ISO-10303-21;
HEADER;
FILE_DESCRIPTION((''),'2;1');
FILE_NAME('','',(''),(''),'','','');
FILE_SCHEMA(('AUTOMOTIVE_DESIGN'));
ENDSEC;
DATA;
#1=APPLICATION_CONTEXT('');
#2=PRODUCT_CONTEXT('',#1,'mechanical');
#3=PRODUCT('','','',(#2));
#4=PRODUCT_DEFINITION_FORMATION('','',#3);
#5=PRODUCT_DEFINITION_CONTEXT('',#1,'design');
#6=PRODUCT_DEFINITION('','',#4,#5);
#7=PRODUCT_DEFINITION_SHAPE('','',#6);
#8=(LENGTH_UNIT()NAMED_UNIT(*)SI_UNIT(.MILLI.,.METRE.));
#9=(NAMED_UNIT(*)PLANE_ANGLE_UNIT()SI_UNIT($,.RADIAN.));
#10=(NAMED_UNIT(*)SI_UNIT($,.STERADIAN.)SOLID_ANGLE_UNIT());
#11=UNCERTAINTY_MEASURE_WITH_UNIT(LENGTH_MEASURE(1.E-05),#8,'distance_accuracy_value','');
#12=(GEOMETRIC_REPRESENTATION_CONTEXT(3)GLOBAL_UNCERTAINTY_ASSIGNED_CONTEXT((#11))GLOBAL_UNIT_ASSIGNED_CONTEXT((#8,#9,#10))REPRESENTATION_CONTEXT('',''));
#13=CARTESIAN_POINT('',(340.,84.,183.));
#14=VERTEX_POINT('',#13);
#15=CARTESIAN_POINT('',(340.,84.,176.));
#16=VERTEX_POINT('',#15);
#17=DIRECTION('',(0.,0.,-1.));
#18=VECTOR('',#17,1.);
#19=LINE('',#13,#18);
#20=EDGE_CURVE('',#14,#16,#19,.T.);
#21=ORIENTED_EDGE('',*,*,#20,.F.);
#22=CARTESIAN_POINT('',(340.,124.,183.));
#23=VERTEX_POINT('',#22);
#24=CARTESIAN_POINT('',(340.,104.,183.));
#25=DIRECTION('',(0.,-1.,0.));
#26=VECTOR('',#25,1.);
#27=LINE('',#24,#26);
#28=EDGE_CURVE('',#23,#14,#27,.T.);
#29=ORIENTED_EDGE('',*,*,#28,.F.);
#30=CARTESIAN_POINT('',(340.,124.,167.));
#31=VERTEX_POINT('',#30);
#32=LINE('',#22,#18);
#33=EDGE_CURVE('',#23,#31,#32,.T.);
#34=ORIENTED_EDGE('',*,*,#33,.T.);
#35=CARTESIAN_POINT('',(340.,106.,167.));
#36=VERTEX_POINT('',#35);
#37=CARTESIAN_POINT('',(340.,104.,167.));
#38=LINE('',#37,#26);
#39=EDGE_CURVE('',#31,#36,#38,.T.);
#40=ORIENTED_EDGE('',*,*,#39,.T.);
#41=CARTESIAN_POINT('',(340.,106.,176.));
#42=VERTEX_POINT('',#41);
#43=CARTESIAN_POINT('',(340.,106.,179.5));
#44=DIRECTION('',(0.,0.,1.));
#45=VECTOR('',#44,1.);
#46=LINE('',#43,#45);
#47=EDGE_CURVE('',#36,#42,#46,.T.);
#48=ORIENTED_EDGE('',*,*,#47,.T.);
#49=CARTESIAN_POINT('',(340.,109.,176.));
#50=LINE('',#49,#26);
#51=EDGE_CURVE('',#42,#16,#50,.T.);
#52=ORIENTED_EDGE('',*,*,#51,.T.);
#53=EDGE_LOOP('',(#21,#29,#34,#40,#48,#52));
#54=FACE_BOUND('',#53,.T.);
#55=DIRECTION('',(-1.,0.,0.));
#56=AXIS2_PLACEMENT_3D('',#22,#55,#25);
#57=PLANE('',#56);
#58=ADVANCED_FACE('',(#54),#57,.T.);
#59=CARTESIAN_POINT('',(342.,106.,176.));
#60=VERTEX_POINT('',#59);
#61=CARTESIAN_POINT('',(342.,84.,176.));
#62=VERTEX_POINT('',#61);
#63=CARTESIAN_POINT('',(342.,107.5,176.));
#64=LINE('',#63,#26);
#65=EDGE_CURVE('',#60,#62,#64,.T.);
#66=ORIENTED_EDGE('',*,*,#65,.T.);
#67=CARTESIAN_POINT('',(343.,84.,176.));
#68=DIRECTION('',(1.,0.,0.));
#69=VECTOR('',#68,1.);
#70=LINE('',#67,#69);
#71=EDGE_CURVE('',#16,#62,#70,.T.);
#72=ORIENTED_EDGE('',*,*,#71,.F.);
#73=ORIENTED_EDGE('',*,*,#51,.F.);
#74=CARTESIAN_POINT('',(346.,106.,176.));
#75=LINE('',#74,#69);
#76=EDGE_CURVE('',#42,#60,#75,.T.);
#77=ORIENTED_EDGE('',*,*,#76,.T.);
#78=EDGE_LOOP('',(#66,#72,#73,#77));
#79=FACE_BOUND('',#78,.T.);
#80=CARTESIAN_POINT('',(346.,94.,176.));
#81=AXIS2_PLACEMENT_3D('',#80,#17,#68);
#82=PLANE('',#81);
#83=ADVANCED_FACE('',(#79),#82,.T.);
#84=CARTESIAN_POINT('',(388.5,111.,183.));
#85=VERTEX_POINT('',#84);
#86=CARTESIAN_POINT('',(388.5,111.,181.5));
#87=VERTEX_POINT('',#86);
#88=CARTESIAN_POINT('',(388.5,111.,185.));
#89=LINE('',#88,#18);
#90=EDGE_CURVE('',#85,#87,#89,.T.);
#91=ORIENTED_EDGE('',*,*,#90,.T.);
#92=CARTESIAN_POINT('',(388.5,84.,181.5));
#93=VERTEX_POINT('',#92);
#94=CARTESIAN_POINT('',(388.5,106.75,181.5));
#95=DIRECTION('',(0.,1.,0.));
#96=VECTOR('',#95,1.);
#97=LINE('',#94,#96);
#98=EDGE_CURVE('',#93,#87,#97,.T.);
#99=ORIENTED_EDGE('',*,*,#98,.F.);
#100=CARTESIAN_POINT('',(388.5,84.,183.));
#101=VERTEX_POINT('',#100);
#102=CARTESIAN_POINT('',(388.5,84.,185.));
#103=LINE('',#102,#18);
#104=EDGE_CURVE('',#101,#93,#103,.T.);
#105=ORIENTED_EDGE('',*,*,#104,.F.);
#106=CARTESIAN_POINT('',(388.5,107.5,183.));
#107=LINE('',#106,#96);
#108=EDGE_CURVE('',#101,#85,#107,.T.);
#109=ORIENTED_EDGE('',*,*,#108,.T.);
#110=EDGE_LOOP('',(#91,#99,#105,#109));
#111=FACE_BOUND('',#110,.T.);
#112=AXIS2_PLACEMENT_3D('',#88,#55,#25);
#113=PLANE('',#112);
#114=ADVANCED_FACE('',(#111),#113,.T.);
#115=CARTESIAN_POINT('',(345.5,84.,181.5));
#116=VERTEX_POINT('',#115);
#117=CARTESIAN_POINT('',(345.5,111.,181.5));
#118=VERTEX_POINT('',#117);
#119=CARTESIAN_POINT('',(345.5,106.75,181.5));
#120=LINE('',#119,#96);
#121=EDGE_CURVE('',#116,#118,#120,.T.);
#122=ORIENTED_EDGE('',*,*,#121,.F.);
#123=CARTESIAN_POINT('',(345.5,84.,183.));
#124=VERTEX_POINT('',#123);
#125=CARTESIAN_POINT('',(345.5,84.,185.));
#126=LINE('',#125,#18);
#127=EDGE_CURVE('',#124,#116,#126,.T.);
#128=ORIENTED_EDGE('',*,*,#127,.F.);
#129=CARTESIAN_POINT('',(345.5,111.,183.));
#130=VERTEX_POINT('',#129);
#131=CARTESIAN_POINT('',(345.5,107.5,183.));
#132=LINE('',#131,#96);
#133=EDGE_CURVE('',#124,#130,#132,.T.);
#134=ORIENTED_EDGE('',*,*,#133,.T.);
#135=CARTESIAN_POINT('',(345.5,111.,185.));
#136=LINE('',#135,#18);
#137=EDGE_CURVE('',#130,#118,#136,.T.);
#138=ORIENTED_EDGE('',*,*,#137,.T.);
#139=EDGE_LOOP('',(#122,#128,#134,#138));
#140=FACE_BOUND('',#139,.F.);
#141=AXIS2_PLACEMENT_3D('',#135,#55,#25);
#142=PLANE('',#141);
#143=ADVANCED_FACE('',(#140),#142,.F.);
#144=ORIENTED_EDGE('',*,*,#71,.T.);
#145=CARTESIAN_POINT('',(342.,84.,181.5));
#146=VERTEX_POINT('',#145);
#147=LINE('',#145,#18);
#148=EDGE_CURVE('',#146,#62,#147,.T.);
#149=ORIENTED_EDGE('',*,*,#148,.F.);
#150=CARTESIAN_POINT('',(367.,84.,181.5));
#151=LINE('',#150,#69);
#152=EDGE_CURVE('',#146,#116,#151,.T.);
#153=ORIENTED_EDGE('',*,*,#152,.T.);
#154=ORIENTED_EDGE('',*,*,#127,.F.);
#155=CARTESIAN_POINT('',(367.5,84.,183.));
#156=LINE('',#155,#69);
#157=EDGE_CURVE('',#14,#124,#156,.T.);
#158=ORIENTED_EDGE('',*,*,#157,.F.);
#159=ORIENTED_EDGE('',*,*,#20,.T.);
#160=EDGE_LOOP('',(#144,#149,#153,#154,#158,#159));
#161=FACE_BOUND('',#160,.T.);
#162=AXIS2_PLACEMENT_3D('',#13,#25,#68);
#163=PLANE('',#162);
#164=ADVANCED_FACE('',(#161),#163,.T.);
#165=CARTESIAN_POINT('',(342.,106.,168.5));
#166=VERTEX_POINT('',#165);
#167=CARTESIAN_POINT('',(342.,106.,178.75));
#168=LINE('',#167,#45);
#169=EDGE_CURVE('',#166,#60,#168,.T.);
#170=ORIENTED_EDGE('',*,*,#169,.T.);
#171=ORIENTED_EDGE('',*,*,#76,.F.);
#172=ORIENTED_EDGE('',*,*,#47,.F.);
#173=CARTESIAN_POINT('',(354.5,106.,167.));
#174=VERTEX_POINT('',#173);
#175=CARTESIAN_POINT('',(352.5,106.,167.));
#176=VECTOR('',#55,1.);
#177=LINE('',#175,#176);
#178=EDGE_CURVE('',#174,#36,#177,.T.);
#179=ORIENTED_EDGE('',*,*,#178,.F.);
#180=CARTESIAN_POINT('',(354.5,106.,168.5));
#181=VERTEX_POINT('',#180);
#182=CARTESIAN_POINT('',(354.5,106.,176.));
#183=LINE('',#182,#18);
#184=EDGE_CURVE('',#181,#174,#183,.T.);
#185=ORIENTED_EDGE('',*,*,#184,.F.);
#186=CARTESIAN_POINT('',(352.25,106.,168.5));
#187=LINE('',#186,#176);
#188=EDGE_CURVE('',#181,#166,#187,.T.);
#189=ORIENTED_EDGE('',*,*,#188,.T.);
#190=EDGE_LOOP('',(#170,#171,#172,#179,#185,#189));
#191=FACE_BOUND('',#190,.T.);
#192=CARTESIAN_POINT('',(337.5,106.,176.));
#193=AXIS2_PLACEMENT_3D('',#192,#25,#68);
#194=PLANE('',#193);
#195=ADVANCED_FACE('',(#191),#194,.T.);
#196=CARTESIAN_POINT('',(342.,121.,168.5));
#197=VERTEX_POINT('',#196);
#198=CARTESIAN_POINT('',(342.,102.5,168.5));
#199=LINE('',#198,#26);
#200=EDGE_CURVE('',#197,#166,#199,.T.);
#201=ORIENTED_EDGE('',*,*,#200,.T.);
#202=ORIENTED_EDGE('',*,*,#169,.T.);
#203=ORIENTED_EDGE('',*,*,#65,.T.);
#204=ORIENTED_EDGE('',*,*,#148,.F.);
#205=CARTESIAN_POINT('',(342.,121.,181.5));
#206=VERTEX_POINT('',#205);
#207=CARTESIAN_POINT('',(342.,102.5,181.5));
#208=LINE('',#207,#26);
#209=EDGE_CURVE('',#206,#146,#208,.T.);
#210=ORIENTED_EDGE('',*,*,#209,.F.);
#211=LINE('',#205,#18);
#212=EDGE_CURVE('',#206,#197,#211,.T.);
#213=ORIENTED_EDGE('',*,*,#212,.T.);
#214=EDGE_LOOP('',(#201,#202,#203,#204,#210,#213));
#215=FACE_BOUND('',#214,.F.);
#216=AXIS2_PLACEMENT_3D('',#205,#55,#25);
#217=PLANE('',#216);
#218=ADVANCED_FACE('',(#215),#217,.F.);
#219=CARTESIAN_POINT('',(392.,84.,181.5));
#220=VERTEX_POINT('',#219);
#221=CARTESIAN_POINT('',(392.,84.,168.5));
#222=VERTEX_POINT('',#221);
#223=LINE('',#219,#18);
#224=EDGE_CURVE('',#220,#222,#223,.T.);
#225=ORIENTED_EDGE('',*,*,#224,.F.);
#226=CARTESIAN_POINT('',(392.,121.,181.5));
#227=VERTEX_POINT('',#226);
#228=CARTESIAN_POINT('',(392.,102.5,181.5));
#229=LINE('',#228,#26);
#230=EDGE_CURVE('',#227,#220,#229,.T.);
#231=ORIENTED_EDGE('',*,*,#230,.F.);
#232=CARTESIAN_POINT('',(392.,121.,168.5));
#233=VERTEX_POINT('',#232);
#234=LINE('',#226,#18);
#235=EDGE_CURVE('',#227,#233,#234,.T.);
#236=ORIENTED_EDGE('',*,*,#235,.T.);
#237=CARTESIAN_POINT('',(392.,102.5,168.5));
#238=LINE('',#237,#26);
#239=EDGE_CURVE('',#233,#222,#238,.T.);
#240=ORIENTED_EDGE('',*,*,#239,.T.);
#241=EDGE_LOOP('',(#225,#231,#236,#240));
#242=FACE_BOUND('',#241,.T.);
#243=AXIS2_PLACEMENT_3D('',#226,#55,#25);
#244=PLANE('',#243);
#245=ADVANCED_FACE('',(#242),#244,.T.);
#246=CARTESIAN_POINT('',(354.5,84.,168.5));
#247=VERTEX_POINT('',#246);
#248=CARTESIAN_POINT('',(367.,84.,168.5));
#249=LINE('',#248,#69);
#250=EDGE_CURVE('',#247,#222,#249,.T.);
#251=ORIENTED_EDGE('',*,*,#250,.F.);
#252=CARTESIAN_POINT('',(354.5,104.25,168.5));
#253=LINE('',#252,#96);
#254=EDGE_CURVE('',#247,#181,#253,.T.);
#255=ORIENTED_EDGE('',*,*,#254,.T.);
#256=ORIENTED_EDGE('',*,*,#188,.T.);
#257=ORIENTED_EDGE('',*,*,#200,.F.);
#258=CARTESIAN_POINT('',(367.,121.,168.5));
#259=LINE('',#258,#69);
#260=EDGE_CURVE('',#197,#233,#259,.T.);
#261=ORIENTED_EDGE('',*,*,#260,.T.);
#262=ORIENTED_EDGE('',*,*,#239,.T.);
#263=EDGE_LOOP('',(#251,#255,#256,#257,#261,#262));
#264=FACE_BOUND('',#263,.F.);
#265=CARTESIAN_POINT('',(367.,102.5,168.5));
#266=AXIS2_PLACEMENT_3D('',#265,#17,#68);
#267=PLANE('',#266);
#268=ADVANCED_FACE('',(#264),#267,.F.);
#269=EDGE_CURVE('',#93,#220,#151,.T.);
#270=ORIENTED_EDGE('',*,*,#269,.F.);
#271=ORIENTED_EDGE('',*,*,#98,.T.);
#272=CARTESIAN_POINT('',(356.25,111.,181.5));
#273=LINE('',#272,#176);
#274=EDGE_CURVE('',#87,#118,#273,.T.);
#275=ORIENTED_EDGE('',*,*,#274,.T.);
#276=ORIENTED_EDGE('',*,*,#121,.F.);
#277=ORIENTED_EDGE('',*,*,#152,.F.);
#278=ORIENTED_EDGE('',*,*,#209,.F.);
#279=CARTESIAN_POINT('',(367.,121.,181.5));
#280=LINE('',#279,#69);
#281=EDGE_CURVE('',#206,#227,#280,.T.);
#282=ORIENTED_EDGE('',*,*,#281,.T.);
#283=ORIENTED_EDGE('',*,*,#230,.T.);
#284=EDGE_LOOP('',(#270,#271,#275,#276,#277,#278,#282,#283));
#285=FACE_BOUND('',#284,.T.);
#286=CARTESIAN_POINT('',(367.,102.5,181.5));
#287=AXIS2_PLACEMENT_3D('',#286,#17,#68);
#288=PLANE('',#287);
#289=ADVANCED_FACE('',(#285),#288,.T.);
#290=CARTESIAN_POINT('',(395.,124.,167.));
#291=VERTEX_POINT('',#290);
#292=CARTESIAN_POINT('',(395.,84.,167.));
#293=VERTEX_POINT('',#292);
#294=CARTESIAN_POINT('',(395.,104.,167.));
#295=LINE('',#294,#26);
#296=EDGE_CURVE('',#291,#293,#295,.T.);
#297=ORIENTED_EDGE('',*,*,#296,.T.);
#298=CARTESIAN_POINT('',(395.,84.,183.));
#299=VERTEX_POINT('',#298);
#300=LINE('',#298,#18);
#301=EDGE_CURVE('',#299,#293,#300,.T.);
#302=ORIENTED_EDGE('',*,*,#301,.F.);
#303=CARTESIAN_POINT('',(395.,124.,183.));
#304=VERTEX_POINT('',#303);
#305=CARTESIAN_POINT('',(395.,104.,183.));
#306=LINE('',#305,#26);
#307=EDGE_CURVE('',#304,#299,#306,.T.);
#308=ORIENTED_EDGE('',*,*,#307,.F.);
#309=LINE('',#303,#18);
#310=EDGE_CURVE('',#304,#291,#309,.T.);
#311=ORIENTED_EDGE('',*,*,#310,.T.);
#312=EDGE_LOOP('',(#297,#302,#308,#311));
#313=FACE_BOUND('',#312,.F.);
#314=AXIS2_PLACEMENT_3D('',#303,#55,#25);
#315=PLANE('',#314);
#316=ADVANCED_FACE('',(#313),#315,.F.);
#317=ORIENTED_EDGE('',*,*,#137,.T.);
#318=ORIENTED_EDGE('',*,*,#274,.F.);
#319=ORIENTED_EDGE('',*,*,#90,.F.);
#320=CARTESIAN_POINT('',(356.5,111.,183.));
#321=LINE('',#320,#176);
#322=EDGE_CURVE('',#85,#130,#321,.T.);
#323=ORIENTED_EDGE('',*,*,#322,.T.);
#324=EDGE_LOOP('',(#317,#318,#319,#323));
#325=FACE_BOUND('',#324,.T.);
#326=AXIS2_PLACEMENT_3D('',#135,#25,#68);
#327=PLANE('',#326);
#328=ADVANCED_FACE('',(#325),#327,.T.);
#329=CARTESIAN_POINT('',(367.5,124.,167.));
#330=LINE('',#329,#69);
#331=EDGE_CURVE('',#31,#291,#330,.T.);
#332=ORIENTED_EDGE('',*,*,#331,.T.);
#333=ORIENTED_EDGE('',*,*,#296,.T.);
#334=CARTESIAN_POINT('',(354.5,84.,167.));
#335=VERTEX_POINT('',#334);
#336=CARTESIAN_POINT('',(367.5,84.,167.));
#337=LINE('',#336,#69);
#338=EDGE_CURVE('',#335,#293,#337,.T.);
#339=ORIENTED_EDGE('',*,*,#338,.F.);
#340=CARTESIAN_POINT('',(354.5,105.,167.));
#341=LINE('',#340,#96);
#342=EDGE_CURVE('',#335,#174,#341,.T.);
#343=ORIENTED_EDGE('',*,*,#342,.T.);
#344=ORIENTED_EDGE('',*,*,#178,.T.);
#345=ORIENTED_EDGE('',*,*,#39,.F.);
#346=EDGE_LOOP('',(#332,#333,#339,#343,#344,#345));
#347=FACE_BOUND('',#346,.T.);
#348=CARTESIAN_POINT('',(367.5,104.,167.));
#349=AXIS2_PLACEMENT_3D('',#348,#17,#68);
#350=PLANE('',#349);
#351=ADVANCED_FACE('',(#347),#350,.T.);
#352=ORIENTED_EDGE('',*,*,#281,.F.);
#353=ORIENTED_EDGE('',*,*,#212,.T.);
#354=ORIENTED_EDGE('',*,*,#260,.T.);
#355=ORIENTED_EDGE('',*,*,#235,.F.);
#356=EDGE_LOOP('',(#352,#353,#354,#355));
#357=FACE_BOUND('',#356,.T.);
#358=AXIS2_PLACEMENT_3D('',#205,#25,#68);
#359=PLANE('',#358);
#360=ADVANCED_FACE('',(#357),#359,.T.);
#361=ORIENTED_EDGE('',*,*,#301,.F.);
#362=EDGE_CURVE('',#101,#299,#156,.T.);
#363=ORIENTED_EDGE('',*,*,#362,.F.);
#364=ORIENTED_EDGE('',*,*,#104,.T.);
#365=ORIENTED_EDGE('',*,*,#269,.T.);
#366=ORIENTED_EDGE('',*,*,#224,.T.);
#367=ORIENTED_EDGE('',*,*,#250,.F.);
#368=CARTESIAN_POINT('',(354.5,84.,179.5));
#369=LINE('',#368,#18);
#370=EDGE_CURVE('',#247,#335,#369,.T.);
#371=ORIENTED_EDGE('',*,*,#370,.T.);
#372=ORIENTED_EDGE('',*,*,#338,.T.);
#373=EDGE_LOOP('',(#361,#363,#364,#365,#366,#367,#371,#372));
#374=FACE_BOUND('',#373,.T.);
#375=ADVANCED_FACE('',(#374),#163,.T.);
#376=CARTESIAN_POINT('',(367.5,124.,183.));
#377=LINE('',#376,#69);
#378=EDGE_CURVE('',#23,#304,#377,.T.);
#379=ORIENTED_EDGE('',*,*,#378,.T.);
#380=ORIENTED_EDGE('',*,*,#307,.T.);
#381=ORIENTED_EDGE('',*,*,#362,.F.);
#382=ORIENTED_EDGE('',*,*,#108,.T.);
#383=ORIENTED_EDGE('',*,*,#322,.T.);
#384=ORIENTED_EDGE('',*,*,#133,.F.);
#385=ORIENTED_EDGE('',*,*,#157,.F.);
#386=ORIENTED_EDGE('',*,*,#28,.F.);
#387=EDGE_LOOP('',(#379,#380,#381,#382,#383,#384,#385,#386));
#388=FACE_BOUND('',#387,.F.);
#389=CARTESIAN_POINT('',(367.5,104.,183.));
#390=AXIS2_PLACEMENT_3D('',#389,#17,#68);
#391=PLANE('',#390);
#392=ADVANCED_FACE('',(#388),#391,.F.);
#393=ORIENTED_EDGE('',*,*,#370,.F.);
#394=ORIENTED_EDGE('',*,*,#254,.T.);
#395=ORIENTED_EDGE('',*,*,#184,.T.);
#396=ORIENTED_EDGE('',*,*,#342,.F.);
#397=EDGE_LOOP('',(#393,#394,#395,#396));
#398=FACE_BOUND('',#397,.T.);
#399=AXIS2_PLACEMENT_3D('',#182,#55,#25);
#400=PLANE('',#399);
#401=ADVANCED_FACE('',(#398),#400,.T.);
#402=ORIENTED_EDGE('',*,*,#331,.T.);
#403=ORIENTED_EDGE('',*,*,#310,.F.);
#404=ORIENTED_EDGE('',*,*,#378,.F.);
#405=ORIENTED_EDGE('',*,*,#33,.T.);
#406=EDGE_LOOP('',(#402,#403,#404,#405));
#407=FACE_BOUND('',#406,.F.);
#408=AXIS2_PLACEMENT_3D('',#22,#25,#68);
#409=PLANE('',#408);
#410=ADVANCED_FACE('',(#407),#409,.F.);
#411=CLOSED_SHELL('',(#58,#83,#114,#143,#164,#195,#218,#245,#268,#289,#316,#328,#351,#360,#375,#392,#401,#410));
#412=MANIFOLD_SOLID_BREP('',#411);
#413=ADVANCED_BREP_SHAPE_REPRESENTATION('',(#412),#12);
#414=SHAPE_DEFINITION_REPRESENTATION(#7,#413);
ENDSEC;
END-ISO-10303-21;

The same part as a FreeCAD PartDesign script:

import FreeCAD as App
import Part
import Sketcher

doc = App.newDocument("Part")
params = doc.addObject("Spreadsheet::Sheet", "Params")
for row, (alias, value) in enumerate([
    ("sketch1_width", "17 mm"),
    ("sketch1_height", "24 mm"),
    ("pad1_length", "11 mm"),
    ("sketch2_width", "43 mm"),
    ("sketch2_height", "27 mm"),
    ("pad2_length", "11 mm"),
    ("sketch3_width", "50 mm"),
    ("sketch3_height", "37 mm"),
    ("pad3_length", "13 mm"),
    ("sketch4_width", "55 mm"),
    ("sketch4_height", "40 mm"),
    ("pad4_length", "16 mm"),
], start=1):
    params.set(f"A{row}", alias)
    params.set(f"B{row}", "=" + value)
    params.setAlias(f"B{row}", alias)

body = doc.addObject("PartDesign::Body", "Body")

# Sketch on XY plane
sketch1 = body.newObject("Sketcher::SketchObject", "Sketch")
sketch1.AttachmentSupport = (doc.getObject("XY_Plane"), [""])
sketch1.MapMode = "FlatFace"
sketch1.AttachmentOffset = App.Placement(App.Vector(0, 0, 176), App.Rotation())
sketch1.addGeometry([
    Part.LineSegment(App.Vector(337.5, 82, 0), App.Vector(337.5, 106, 0)),
    Part.LineSegment(App.Vector(337.5, 106, 0), App.Vector(354.5, 106, 0)),
    Part.LineSegment(App.Vector(354.5, 106, 0), App.Vector(354.5, 82, 0)),
    Part.LineSegment(App.Vector(354.5, 82, 0), App.Vector(337.5, 82, 0)),
], False)
sketch1.addConstraint([
    Sketcher.Constraint("Coincident", 0, 2, 1, 1),
    Sketcher.Constraint("Coincident", 1, 2, 2, 1),
    Sketcher.Constraint("Coincident", 2, 2, 3, 1),
    Sketcher.Constraint("Coincident", 3, 2, 0, 1),
    Sketcher.Constraint("Vertical", 0),
    Sketcher.Constraint("Horizontal", 1),
    Sketcher.Constraint("Vertical", 2),
    Sketcher.Constraint("Horizontal", 3),
    Sketcher.Constraint("DistanceX", 1, 1, 1, 2, 17.0),
    Sketcher.Constraint("DistanceY", 0, 1, 0, 2, 24.0),
    Sketcher.Constraint("DistanceY", -1, 1, 0, 2, 106.0),
    Sketcher.Constraint("DistanceX", -1, 1, 0, 2, 337.5),
])
sketch1.setExpression("Constraints[8]", "Params.sketch1_width")
sketch1.setExpression("Constraints[9]", "Params.sketch1_height")
pad1 = body.newObject("PartDesign::Pad", "Pad")
pad1.Profile = sketch1
pad1.setExpression("Length", "Params.pad1_length")
pad1.Reversed = True
body2 = doc.addObject("PartDesign::Body", "Body001")

# Sketch on XY plane
sketch2 = body2.newObject("Sketcher::SketchObject", "Sketch001")
sketch2.AttachmentSupport = (doc.getObject("XY_Plane001"), [""])
sketch2.MapMode = "FlatFace"
sketch2.AttachmentOffset = App.Placement(App.Vector(0, 0, 185), App.Rotation())
sketch2.addGeometry([
    Part.LineSegment(App.Vector(345.5, 84, 0), App.Vector(345.5, 111, 0)),
    Part.LineSegment(App.Vector(345.5, 111, 0), App.Vector(388.5, 111, 0)),
    Part.LineSegment(App.Vector(388.5, 111, 0), App.Vector(388.5, 84, 0)),
    Part.LineSegment(App.Vector(388.5, 84, 0), App.Vector(345.5, 84, 0)),
], False)
sketch2.addConstraint([
    Sketcher.Constraint("Coincident", 0, 2, 1, 1),
    Sketcher.Constraint("Coincident", 1, 2, 2, 1),
    Sketcher.Constraint("Coincident", 2, 2, 3, 1),
    Sketcher.Constraint("Coincident", 3, 2, 0, 1),
    Sketcher.Constraint("Vertical", 0),
    Sketcher.Constraint("Horizontal", 1),
    Sketcher.Constraint("Vertical", 2),
    Sketcher.Constraint("Horizontal", 3),
    Sketcher.Constraint("DistanceX", 1, 1, 1, 2, 43.0),
    Sketcher.Constraint("DistanceY", 0, 1, 0, 2, 27.0),
    Sketcher.Constraint("DistanceY", -1, 1, 0, 2, 111.0),
    Sketcher.Constraint("DistanceX", -1, 1, 0, 2, 345.5),
])
sketch2.setExpression("Constraints[8]", "Params.sketch2_width")
sketch2.setExpression("Constraints[9]", "Params.sketch2_height")
pad2 = body2.newObject("PartDesign::Pad", "Pad001")
pad2.Profile = sketch2
pad2.setExpression("Length", "Params.pad2_length")
pad2.Reversed = True
body3 = doc.addObject("PartDesign::Body", "Body002")

# Sketch on XY plane
sketch3 = body3.newObject("Sketcher::SketchObject", "Sketch002")
sketch3.AttachmentSupport = (doc.getObject("XY_Plane002"), [""])
sketch3.MapMode = "FlatFace"
sketch3.AttachmentOffset = App.Placement(App.Vector(0, 0, 181.5), App.Rotation())
sketch3.addGeometry([
    Part.LineSegment(App.Vector(342, 84, 0), App.Vector(342, 121, 0)),
    Part.LineSegment(App.Vector(342, 121, 0), App.Vector(392, 121, 0)),
    Part.LineSegment(App.Vector(392, 121, 0), App.Vector(392, 84, 0)),
    Part.LineSegment(App.Vector(392, 84, 0), App.Vector(342, 84, 0)),
], False)
sketch3.addConstraint([
    Sketcher.Constraint("Coincident", 0, 2, 1, 1),
    Sketcher.Constraint("Coincident", 1, 2, 2, 1),
    Sketcher.Constraint("Coincident", 2, 2, 3, 1),
    Sketcher.Constraint("Coincident", 3, 2, 0, 1),
    Sketcher.Constraint("Vertical", 0),
    Sketcher.Constraint("Horizontal", 1),
    Sketcher.Constraint("Vertical", 2),
    Sketcher.Constraint("Horizontal", 3),
    Sketcher.Constraint("DistanceX", 1, 1, 1, 2, 50.0),
    Sketcher.Constraint("DistanceY", 0, 1, 0, 2, 37.0),
    Sketcher.Constraint("DistanceX", -1, 1, 0, 2, 342.0),
    Sketcher.Constraint("DistanceY", -1, 1, 0, 2, 121.0),
])
sketch3.setExpression("Constraints[8]", "Params.sketch3_width")
sketch3.setExpression("Constraints[9]", "Params.sketch3_height")
pad3 = body3.newObject("PartDesign::Pad", "Pad002")
pad3.Profile = sketch3
pad3.setExpression("Length", "Params.pad3_length")
pad3.Reversed = True
body4 = doc.addObject("PartDesign::Body", "Body003")

# Sketch on XY plane
sketch4 = body4.newObject("Sketcher::SketchObject", "Sketch003")
sketch4.AttachmentSupport = (doc.getObject("XY_Plane003"), [""])
sketch4.MapMode = "FlatFace"
sketch4.AttachmentOffset = App.Placement(App.Vector(0, 0, 183), App.Rotation())
sketch4.addGeometry([
    Part.LineSegment(App.Vector(340, 84, 0), App.Vector(340, 124, 0)),
    Part.LineSegment(App.Vector(340, 124, 0), App.Vector(395, 124, 0)),
    Part.LineSegment(App.Vector(395, 124, 0), App.Vector(395, 84, 0)),
    Part.LineSegment(App.Vector(395, 84, 0), App.Vector(340, 84, 0)),
], False)
sketch4.addConstraint([
    Sketcher.Constraint("Coincident", 0, 2, 1, 1),
    Sketcher.Constraint("Coincident", 1, 2, 2, 1),
    Sketcher.Constraint("Coincident", 2, 2, 3, 1),
    Sketcher.Constraint("Coincident", 3, 2, 0, 1),
    Sketcher.Constraint("Vertical", 0),
    Sketcher.Constraint("Horizontal", 1),
    Sketcher.Constraint("Vertical", 2),
    Sketcher.Constraint("Horizontal", 3),
    Sketcher.Constraint("DistanceX", 1, 1, 1, 2, 55.0),
    Sketcher.Constraint("DistanceY", 0, 1, 0, 2, 40.0),
    Sketcher.Constraint("DistanceX", -1, 1, 0, 2, 340.0),
    Sketcher.Constraint("DistanceY", -1, 1, 0, 2, 124.0),
])
sketch4.setExpression("Constraints[8]", "Params.sketch4_width")
sketch4.setExpression("Constraints[9]", "Params.sketch4_height")
pad4 = body4.newObject("PartDesign::Pad", "Pad003")
pad4.Profile = sketch4
pad4.setExpression("Length", "Params.pad4_length")
pad4.Reversed = True
doc.recompute()

boolean = body4.newObject("PartDesign::Boolean", "Boolean")
boolean.Type = "Cut"
boolean.addObjects([body3])
doc.recompute()

boolean2 = body4.newObject("PartDesign::Boolean", "Boolean001")
boolean2.Type = "Cut"
boolean2.addObjects([body2])
doc.recompute()

boolean3 = body4.newObject("PartDesign::Boolean", "Boolean002")
boolean3.Type = "Cut"
boolean3.addObjects([body])

doc.recompute()
